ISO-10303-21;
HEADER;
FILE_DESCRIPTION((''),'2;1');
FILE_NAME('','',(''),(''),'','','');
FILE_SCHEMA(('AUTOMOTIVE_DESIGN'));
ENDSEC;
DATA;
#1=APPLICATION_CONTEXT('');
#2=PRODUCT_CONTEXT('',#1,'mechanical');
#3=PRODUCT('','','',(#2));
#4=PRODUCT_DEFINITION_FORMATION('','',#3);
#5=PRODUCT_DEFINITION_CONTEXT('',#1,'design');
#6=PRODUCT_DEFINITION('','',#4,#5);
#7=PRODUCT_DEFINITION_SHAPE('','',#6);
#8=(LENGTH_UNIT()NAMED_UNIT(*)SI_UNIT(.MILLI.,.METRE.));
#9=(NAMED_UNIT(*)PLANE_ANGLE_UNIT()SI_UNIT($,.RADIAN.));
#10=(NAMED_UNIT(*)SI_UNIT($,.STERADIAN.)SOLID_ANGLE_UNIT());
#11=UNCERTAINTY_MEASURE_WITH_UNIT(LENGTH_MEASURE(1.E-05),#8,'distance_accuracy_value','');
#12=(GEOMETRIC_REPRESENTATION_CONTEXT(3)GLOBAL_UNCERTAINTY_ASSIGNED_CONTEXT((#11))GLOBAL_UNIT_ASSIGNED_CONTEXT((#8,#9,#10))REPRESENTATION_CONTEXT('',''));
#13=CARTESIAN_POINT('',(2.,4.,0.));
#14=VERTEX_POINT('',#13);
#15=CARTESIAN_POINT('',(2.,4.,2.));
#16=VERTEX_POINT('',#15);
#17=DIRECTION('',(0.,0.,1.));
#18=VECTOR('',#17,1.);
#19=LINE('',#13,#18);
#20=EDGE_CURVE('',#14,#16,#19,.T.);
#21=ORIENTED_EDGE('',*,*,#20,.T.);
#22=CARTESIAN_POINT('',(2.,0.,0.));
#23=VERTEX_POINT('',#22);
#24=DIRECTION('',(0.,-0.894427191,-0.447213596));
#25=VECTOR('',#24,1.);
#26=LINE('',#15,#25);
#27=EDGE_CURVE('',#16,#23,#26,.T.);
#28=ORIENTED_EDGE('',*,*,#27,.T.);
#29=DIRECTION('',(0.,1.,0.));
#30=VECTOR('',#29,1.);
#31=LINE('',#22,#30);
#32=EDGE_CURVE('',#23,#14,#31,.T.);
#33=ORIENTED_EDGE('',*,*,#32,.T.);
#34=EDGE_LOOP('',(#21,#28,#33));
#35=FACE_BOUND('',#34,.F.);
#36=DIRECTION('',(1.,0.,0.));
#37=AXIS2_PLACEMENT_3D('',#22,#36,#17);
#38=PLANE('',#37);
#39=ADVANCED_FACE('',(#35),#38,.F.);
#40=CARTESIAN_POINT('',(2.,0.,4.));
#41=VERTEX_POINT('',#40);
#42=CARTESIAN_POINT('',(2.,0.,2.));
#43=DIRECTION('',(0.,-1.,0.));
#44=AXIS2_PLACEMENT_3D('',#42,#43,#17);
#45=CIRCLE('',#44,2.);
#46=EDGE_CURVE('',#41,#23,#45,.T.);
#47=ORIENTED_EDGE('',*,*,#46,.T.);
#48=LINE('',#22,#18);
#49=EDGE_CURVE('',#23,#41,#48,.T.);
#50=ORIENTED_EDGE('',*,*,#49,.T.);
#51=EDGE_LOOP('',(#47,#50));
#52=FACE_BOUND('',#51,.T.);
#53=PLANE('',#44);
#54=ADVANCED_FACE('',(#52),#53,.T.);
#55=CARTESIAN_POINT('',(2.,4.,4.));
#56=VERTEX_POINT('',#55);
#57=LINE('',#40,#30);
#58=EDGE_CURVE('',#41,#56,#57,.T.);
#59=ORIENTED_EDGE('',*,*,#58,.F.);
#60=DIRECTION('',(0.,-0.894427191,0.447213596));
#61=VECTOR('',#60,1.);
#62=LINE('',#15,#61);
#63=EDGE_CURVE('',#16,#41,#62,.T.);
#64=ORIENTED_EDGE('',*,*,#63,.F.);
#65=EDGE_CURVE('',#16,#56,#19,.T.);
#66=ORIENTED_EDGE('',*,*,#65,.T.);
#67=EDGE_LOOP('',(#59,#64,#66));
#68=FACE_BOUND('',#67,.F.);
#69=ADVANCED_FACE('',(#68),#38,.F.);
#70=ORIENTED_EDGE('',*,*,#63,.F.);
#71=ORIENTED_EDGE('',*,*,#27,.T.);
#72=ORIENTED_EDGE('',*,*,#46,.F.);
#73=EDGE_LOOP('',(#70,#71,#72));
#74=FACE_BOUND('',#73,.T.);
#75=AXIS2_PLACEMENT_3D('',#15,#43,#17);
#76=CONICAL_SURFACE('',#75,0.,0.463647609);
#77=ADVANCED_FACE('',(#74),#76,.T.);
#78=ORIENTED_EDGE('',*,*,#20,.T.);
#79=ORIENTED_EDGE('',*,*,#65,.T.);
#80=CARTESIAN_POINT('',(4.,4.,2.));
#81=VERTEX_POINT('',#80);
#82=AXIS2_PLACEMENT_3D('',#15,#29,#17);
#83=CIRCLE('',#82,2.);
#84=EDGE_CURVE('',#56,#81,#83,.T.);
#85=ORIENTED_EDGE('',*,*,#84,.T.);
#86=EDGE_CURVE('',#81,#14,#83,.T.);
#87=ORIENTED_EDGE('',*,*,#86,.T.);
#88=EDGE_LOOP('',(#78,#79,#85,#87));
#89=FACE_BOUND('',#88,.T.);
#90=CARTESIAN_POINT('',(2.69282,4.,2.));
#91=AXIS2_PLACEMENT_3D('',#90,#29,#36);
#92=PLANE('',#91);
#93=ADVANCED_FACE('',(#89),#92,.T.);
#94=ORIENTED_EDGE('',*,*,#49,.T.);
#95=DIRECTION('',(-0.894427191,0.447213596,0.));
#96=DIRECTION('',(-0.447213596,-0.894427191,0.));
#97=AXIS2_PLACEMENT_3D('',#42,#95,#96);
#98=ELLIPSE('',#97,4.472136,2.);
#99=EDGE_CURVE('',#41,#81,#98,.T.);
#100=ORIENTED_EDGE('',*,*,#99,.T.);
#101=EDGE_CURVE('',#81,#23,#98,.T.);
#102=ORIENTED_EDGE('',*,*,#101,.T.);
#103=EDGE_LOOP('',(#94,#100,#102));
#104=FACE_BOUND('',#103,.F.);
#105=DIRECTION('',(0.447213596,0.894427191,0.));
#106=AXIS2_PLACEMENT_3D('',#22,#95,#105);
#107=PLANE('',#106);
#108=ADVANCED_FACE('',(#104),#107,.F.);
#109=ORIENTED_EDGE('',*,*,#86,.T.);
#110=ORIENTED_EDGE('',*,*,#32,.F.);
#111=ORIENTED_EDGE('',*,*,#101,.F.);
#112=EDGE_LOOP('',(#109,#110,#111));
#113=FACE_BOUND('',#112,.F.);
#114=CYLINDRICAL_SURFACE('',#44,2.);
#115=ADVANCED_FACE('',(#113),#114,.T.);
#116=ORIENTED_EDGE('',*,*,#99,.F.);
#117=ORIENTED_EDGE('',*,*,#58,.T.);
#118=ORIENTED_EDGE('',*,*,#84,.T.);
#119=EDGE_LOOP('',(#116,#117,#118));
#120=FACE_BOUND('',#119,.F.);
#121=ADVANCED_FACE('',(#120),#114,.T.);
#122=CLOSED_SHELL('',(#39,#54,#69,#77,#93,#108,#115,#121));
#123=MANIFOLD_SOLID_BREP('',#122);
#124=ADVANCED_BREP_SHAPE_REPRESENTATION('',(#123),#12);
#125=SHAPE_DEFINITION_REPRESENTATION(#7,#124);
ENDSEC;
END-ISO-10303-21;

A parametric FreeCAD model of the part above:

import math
import FreeCAD as App
import Part
import Sketcher
Q = App.Units.Quantity

doc = App.newDocument("Part")
body = doc.addObject("PartDesign::Body", "Body")

sketch1 = body.newObject("Sketcher::SketchObject", "Sketch")
sketch1.AttachmentSupport = (doc.getObject("XZ_Plane"), [""])
sketch1.MapMode = "FlatFace"
sketch1.addGeometry([
    Part.LineSegment(App.Vector(2, 0, 0), App.Vector(2, 4, 0)),
    Part.ArcOfCircle(Part.Circle(App.Vector(2, 2, 0), App.Vector(0, 0, 1), 2), math.radians(-90), math.radians(90)),
], False)
sketch1.addConstraint([
    Sketcher.Constraint("Coincident", 0, 1, 1, 1),
    Sketcher.Constraint("Coincident", 1, 2, 0, 2),
    Sketcher.Constraint("Vertical", 0),
    Sketcher.Constraint("PointOnObject", 0, 1, -1),
    Sketcher.Constraint("Vertical", 1, 3, 0, 1),
    Sketcher.Constraint("Radius", 1, Q("2 mm")),
    Sketcher.Constraint("DistanceX", -1, 1, 1, 3, Q("2 mm")),
])
pad1 = body.newObject("PartDesign::Pad", "Pad")
pad1.Profile = sketch1
pad1.Length = 4
pad1.Reversed = True

sketch2 = body.newObject("Sketcher::SketchObject", "Sketch001")
sketch2.AttachmentSupport = (doc.getObject("YZ_Plane"), [""])
sketch2.MapMode = "FlatFace"
sketch2.AttachmentOffset = App.Placement(App.Vector(0, 0, 2), App.Rotation())
sketch2.addGeometry([
    Part.LineSegment(App.Vector(4, 2, 0), App.Vector(0, 2, 0)),
    Part.LineSegment(App.Vector(0, 2, 0), App.Vector(0, 4, 0)),
    Part.LineSegment(App.Vector(0, 4, 0), App.Vector(4, 2, 0)),
], False)
sketch2.addGeometry(Part.LineSegment(App.Vector(4, 2, 0), App.Vector(0, 2, 0)), True)
sketch2.addConstraint([
    Sketcher.Constraint("Coincident", 0, 2, 1, 1),
    Sketcher.Constraint("Coincident", 1, 2, 2, 1),
    Sketcher.Constraint("Coincident", 2, 2, 0, 1),
    Sketcher.Constraint("Horizontal", 0),
    Sketcher.Constraint("Vertical", 1),
    Sketcher.Constraint("Horizontal", 3),
    Sketcher.Constraint("Coincident", 3, 1, 2, 2),
    Sketcher.Constraint("PointOnObject", 0, 2, -2),
    Sketcher.Constraint("PointOnObject", 3, 2, -2),
    Sketcher.Constraint("DistanceX", 0, 2, 0, 1, Q("4 mm")),
    Sketcher.Constraint("DistanceY", 1, 1, 1, 2, Q("2 mm")),
    Sketcher.Constraint("DistanceY", -1, 1, 0, 2, Q("2 mm")),
])
revolution = body.newObject("PartDesign::Revolution", "Revolution")
revolution.Profile = sketch2
revolution.ReferenceAxis = (sketch2, ["Axis0"])
revolution.Angle = 180

sketch3 = body.newObject("Sketcher::SketchObject", "Sketch002")
sketch3.AttachmentSupport = (doc.getObject("XY_Plane"), [""])
sketch3.MapMode = "FlatFace"
sketch3.addGeometry([
    Part.LineSegment(App.Vector(2, 0, 0), App.Vector(4, 0, 0)),
    Part.LineSegment(App.Vector(4, 0, 0), App.Vector(4, 4, 0)),
    Part.LineSegment(App.Vector(4, 4, 0), App.Vector(2, 0, 0)),
], False)
sketch3.addConstraint([
    Sketcher.Constraint("Coincident", 0, 2, 1, 1),
    Sketcher.Constraint("Coincident", 1, 2, 2, 1),
    Sketcher.Constraint("Coincident", 2, 2, 0, 1),
    Sketcher.Constraint("Horizontal", 0),
    Sketcher.Constraint("Vertical", 1),
    Sketcher.Constraint("PointOnObject", 0, 2, -1),
    Sketcher.Constraint("DistanceX", 0, 1, 0, 2, Q("2 mm")),
    Sketcher.Constraint("DistanceY", 1, 1, 1, 2, Q("4 mm")),
    Sketcher.Constraint("DistanceX", -1, 1, 0, 2, Q("4 mm")),
])
pocket1 = body.newObject("PartDesign::Pocket", "Pocket")
pocket1.Profile = sketch3
pocket1.Length = 4
pocket1.Reversed = True

doc.recompute()
